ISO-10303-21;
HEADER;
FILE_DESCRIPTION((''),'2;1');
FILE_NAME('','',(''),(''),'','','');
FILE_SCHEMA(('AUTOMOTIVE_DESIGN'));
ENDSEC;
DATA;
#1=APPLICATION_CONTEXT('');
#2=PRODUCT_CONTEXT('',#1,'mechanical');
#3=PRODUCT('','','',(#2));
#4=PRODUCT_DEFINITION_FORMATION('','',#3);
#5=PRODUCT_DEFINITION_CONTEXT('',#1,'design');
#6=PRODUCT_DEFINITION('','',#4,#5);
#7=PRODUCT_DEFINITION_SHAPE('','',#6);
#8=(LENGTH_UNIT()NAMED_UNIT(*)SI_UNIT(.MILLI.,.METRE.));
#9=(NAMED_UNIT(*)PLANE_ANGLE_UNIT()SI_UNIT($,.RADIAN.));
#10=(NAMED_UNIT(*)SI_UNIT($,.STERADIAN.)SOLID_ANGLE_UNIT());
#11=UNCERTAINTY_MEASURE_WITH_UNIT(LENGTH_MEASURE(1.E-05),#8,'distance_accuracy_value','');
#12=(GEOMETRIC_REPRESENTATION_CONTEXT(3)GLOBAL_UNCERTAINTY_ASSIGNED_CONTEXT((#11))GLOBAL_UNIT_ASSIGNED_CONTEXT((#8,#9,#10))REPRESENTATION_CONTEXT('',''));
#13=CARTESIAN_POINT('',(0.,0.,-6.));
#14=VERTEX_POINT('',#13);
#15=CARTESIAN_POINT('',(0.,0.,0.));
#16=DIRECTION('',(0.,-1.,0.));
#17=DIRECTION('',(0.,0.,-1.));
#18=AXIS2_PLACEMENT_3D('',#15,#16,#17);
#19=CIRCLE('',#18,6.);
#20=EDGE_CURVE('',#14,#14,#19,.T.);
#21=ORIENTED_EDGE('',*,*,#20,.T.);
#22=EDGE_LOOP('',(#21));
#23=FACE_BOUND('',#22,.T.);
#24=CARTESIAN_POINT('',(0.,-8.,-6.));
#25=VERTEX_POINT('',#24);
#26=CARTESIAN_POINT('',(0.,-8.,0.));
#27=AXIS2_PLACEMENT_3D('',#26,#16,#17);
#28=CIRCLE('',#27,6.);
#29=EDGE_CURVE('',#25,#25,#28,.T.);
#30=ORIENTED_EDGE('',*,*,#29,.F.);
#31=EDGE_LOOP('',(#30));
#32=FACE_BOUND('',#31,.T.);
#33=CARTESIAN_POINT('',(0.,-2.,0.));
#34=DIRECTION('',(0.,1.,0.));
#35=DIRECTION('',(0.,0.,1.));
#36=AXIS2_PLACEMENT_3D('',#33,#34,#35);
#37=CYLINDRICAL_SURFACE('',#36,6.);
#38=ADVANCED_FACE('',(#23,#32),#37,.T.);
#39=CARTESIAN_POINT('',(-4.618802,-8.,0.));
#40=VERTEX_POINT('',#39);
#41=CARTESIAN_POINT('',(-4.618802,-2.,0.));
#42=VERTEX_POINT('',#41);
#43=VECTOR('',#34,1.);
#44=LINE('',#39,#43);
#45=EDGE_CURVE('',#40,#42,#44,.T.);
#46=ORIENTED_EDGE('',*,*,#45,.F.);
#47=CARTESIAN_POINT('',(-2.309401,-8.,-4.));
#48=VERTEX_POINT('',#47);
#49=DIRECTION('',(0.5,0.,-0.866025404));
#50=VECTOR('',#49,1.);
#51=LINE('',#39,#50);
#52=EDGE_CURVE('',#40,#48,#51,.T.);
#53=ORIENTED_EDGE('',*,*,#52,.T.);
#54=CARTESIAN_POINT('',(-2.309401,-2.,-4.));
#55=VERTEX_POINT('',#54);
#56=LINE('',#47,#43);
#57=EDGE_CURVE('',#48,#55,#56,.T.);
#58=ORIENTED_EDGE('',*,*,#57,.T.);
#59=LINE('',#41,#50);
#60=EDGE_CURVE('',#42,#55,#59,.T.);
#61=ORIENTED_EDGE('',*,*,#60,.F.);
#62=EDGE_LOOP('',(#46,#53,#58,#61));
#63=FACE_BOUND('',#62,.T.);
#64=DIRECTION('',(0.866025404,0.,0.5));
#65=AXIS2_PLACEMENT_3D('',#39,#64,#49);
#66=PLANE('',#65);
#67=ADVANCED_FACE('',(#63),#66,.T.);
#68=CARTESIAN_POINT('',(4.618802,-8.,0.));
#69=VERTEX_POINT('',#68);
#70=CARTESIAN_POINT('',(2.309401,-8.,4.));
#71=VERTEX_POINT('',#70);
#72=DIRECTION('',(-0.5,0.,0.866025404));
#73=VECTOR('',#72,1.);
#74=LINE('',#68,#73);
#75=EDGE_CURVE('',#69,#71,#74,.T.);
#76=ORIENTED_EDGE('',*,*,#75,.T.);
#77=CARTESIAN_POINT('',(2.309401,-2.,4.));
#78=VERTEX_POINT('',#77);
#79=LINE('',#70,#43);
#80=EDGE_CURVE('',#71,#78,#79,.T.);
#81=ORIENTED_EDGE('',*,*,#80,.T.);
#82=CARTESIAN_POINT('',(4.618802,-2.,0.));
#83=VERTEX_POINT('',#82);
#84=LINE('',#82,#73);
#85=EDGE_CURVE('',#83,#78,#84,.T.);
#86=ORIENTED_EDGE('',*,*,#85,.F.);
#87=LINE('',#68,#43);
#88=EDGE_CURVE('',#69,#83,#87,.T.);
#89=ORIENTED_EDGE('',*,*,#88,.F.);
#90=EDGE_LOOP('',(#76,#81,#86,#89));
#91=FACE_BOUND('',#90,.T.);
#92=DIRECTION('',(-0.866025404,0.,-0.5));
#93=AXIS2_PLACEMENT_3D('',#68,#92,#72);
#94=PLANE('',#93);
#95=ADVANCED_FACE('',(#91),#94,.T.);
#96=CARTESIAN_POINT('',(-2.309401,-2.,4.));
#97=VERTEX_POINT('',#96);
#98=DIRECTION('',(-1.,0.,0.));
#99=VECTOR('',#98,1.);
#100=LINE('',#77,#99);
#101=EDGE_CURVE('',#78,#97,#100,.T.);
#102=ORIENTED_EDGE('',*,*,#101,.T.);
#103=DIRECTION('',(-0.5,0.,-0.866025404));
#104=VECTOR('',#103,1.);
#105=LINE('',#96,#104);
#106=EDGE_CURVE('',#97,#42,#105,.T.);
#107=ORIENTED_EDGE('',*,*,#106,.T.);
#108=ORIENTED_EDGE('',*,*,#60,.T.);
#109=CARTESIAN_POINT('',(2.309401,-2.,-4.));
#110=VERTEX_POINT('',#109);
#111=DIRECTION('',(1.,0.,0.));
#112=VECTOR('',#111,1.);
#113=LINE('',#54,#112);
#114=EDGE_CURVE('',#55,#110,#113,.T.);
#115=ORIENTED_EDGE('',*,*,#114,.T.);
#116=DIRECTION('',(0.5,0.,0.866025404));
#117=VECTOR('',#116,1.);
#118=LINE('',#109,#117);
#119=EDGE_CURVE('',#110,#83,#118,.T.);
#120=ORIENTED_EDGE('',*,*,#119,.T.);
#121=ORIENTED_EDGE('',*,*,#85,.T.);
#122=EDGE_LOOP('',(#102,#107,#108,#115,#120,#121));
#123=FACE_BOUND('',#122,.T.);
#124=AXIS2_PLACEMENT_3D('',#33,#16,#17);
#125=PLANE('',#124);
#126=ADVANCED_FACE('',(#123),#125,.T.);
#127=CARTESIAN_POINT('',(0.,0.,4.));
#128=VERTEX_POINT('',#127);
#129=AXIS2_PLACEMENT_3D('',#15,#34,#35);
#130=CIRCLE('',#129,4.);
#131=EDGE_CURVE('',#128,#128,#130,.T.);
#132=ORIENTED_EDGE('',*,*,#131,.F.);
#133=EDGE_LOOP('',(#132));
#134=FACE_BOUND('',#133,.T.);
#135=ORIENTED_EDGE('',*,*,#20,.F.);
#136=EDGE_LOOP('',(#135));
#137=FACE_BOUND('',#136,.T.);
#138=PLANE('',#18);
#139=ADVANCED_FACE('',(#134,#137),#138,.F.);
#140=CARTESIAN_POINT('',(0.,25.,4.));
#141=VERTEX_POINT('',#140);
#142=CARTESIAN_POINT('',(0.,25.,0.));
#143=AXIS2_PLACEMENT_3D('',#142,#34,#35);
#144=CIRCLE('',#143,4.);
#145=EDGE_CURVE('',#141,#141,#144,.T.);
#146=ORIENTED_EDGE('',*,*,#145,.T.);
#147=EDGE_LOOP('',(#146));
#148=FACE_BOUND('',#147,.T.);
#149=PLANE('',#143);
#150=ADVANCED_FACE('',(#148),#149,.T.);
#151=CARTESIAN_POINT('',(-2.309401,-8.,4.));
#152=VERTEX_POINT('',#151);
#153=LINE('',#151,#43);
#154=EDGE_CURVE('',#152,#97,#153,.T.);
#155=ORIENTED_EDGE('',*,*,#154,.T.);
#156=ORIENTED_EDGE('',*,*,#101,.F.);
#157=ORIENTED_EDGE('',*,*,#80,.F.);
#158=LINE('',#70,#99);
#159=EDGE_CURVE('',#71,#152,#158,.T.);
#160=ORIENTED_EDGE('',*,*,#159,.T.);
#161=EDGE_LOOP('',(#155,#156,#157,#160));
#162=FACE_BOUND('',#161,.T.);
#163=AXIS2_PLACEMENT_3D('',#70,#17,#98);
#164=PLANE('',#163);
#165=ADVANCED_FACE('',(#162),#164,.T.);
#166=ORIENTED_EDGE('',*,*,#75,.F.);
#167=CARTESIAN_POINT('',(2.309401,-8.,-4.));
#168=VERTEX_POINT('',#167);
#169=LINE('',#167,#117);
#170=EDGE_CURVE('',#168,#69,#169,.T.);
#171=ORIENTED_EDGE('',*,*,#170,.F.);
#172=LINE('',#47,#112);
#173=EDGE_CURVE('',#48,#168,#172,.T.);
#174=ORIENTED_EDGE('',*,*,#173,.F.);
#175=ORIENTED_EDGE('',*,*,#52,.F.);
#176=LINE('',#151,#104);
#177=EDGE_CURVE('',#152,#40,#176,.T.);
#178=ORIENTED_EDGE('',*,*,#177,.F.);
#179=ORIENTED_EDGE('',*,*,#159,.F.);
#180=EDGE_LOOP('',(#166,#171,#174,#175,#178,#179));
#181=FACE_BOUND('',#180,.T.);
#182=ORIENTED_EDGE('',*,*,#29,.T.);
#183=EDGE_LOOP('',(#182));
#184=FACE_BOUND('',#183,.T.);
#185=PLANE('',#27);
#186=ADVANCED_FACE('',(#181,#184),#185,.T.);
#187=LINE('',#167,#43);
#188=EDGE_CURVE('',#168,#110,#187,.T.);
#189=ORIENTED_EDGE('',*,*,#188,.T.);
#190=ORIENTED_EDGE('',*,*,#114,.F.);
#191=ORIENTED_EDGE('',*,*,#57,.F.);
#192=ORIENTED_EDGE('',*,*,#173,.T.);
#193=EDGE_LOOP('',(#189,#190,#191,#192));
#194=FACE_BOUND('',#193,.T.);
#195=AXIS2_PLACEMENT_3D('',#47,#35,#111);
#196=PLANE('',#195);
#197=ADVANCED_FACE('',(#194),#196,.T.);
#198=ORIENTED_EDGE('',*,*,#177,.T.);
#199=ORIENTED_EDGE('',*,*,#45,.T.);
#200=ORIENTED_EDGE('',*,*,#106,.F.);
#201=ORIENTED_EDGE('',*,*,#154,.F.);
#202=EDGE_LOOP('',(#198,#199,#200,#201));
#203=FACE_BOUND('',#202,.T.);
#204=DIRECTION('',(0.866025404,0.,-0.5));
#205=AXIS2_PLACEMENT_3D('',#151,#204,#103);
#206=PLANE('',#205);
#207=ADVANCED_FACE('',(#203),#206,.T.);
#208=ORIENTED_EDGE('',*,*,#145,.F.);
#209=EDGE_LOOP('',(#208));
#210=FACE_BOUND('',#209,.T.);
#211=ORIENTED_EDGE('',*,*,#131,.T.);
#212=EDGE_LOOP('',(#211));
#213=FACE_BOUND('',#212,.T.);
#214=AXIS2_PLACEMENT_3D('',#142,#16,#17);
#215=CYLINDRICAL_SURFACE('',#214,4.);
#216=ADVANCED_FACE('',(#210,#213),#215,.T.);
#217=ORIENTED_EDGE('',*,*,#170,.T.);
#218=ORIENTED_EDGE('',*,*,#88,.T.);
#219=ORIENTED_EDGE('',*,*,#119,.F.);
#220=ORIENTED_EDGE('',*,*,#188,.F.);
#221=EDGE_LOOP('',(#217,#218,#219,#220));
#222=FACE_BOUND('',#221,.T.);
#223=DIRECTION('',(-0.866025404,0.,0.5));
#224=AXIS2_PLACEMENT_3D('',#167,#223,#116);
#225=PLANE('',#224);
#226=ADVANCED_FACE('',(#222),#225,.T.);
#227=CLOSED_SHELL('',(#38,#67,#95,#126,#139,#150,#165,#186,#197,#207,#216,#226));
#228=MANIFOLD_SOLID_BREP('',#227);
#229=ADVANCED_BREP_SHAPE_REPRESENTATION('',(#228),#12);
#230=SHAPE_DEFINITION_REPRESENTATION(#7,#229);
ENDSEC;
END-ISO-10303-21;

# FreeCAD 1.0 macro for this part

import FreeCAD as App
import Part
import Sketcher
from FreeCAD import Vector
Q = App.Units.Quantity


def add_polygon(sketch, points):
    """Adds a closed chain of lines whose ends are joined by coincident constraints."""
    first, n = sketch.GeometryCount, len(points)
    for a, b in zip(points, points[1:] + points[:1]):
        sketch.addGeometry(Part.LineSegment(App.Vector(*a, 0), App.Vector(*b, 0)), False)
    for i in range(n):
        sketch.addConstraint(Sketcher.Constraint("Coincident", first + i, 2, first + (i + 1) % n, 1))

doc = App.newDocument("Part")
body = doc.addObject("PartDesign::Body", "Body")

sketch1 = body.newObject("Sketcher::SketchObject", "Sketch")
sketch1.AttachmentSupport = (doc.getObject("XZ_Plane"), [""])
sketch1.MapMode = "FlatFace"
sketch1.addGeometry(Part.Circle(Vector(0, 0, 0), Vector(0, 0, 1), 4), False)
sketch1.addConstraint(Sketcher.Constraint("Coincident", 0, 3, -1, 1))
sketch1.addConstraint(Sketcher.Constraint("Diameter", 0, Q("8 mm")))
pad1 = body.newObject("PartDesign::Pad", "Pad")
pad1.Profile = sketch1
pad1.Length = 25
pad1.Reversed = True

sketch2 = body.newObject("Sketcher::SketchObject", "Sketch001")
sketch2.AttachmentSupport = (doc.getObject("XZ_Plane"), [""])
sketch2.MapMode = "FlatFace"
sketch2.addGeometry(Part.Circle(Vector(0, 0, 0), Vector(0, 0, 1), 6), False)
sketch2.addConstraint(Sketcher.Constraint("Coincident", 0, 3, -1, 1))
sketch2.addConstraint(Sketcher.Constraint("Diameter", 0, Q("12 mm")))
pad2 = body.newObject("PartDesign::Pad", "Pad001")
pad2.Profile = sketch2
pad2.Length = 2

sketch3 = body.newObject("Sketcher::SketchObject", "Sketch002")
sketch3.AttachmentSupport = (doc.getObject("XZ_Plane"), [""])
sketch3.MapMode = "FlatFace"
sketch3.AttachmentOffset = App.Placement(Vector(0, 0, 2), App.Rotation())
sketch3.addGeometry(Part.Circle(Vector(0, 0, 0), Vector(0, 0, 1), 6), False)
add_polygon(sketch3, [(2.3, 4), (4.6, 0), (2.3, -4), (-2.3, -4), (-4.6, 0), (-2.3, 4)])
sketch3.addConstraint(Sketcher.Constraint("Horizontal", 3))
sketch3.addConstraint(Sketcher.Constraint("Horizontal", 6))
sketch3.addConstraint(Sketcher.Constraint("Coincident", 0, 3, -1, 1))
sketch3.addConstraint(Sketcher.Constraint("Symmetric", 1, 2, 4, 2, -1, 1))
sketch3.addConstraint(Sketcher.Constraint("Symmetric", 2, 2, 5, 2, -1, 1))
sketch3.addConstraint(Sketcher.Constraint("PointOnObject", 1, 2, -1))
sketch3.addConstraint(Sketcher.Constraint("Parallel", 1, 4))
sketch3.addConstraint(Sketcher.Constraint("Vertical", 3, 2, 5, 2))
sketch3.addConstraint(Sketcher.Constraint("Diameter", 0, Q("12 mm")))
sketch3.addConstraint(Sketcher.Constraint("Angle", 1, Q("-60 deg")))
sketch3.addConstraint(Sketcher.Constraint("DistanceY", 2, 2, -1, 1, Q("4 mm")))
sketch3.addConstraint(Sketcher.Constraint("DistanceX", -1, 1, 2, 2, Q("2.309401 mm")))
pad3 = body.newObject("PartDesign::Pad", "Pad002")
pad3.Profile = sketch3
pad3.Length = 6

doc.recompute()
